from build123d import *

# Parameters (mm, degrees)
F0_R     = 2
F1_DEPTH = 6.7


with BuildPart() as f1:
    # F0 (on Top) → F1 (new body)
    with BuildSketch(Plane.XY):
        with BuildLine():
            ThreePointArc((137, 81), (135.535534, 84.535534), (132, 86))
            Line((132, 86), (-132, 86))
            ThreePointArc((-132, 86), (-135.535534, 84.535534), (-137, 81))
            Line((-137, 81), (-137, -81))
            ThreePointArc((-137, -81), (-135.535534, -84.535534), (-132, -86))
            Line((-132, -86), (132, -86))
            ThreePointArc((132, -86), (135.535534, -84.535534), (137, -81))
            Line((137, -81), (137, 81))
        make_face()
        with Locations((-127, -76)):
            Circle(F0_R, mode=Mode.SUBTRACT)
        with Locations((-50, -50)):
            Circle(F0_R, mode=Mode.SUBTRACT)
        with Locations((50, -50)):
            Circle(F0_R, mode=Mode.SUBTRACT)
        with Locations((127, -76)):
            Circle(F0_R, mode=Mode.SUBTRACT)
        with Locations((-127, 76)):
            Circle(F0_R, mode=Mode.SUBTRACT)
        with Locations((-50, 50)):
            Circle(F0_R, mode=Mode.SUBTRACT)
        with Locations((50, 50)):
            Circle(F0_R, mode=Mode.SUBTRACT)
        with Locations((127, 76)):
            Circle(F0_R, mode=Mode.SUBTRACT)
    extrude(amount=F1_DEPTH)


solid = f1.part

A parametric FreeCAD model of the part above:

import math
import FreeCAD as App
import Part
import Sketcher

V = App.Vector
Q = App.Units.Quantity

doc = App.newDocument("Part")
body = doc.addObject("PartDesign::Body", "Body")

sketch1 = body.newObject("Sketcher::SketchObject", "Sketch")
sketch1.AttachmentSupport = (doc.getObject("XY_Plane"), [""])
sketch1.MapMode = "FlatFace"
sketch1.addGeometry(Part.ArcOfCircle(Part.Circle(V(132, 81, 0), V(0, 0, 1), 5), math.radians(0), math.radians(90)), False)
sketch1.addGeometry(Part.LineSegment(V(132, 86, 0), V(-132, 86, 0)), False)
sketch1.addGeometry(Part.ArcOfCircle(Part.Circle(V(-132, 81, 0), V(0, 0, 1), 5), math.radians(90), math.radians(180)), False)
sketch1.addGeometry(Part.LineSegment(V(-137, 81, 0), V(-137, -81, 0)), False)
sketch1.addGeometry(Part.ArcOfCircle(Part.Circle(V(-132, -81, 0), V(0, 0, 1), 5), math.radians(180), math.radians(270)), False)
sketch1.addGeometry(Part.LineSegment(V(-132, -86, 0), V(132, -86, 0)), False)
sketch1.addGeometry(Part.ArcOfCircle(Part.Circle(V(132, -81, 0), V(0, 0, 1), 5), math.radians(-90), math.radians(0)), False)
sketch1.addGeometry(Part.LineSegment(V(137, -81, 0), V(137, 81, 0)), False)
sketch1.addGeometry(Part.Circle(V(-127, -76, 0), V(0, 0, 1), 2), False)
sketch1.addGeometry(Part.Circle(V(-50, -50, 0), V(0, 0, 1), 2), False)
sketch1.addGeometry(Part.Circle(V(50, -50, 0), V(0, 0, 1), 2), False)
sketch1.addGeometry(Part.Circle(V(127, -76, 0), V(0, 0, 1), 2), False)
sketch1.addGeometry(Part.Circle(V(-127, 76, 0), V(0, 0, 1), 2), False)
sketch1.addGeometry(Part.Circle(V(-50, 50, 0), V(0, 0, 1), 2), False)
sketch1.addGeometry(Part.Circle(V(50, 50, 0), V(0, 0, 1), 2), False)
sketch1.addGeometry(Part.Circle(V(127, 76, 0), V(0, 0, 1), 2), False)
sketch1.addConstraint(Sketcher.Constraint("Tangent", 0, 2, 1, 1))
sketch1.addConstraint(Sketcher.Constraint("Tangent", 1, 2, 2, 1))
sketch1.addConstraint(Sketcher.Constraint("Tangent", 2, 2, 3, 1))
sketch1.addConstraint(Sketcher.Constraint("Tangent", 3, 2, 4, 1))
sketch1.addConstraint(Sketcher.Constraint("Tangent", 4, 2, 5, 1))
sketch1.addConstraint(Sketcher.Constraint("Tangent", 5, 2, 6, 1))
sketch1.addConstraint(Sketcher.Constraint("Tangent", 6, 2, 7, 1))
sketch1.addConstraint(Sketcher.Constraint("Tangent", 7, 2, 0, 1))
sketch1.addConstraint(Sketcher.Constraint("Horizontal", 1))
sketch1.addConstraint(Sketcher.Constraint("Vertical", 3))
sketch1.addConstraint(Sketcher.Constraint("Horizontal", 5))
sketch1.addConstraint(Sketcher.Constraint("Vertical", 7))
sketch1.addConstraint(Sketcher.Constraint("Equal", 0, 2))
sketch1.addConstraint(Sketcher.Constraint("Equal", 2, 4))
sketch1.addConstraint(Sketcher.Constraint("Equal", 4, 6))
sketch1.addConstraint(Sketcher.Constraint("Equal", 8, 9))
sketch1.addConstraint(Sketcher.Constraint("Equal", 9, 10))
sketch1.addConstraint(Sketcher.Constraint("Equal", 10, 11))
sketch1.addConstraint(Sketcher.Constraint("Equal", 11, 12))
sketch1.addConstraint(Sketcher.Constraint("Equal", 12, 13))
sketch1.addConstraint(Sketcher.Constraint("Equal", 13, 14))
sketch1.addConstraint(Sketcher.Constraint("Equal", 14, 15))
sketch1.addConstraint(Sketcher.Constraint("Symmetric", 0, 3, 4, 3, -1, 1))
sketch1.addConstraint(Sketcher.Constraint("Symmetric", 11, 3, 12, 3, -1, 1))
sketch1.addConstraint(Sketcher.Constraint("Symmetric", 10, 3, 13, 3, -1, 1))
sketch1.addConstraint(Sketcher.Constraint("Symmetric", 9, 3, 14, 3, -1, 1))
sketch1.addConstraint(Sketcher.Constraint("Symmetric", 8, 3, 15, 3, -1, 1))
sketch1.addConstraint(Sketcher.Constraint("Symmetric", 9, 3, 10, 3, -2))
sketch1.addConstraint(Sketcher.Constraint("Symmetric", 8, 3, 11, 3, -2))
sketch1.addConstraint(Sketcher.Constraint("Diameter", 8, Q("4 mm")))
sketch1.addConstraint(Sketcher.Constraint("Radius", 0, Q("5 mm")))
sketch1.addConstraint(Sketcher.Constraint("DistanceX", 1, 2, 1, 1, Q("264 mm")))
sketch1.addConstraint(Sketcher.Constraint("DistanceY", 3, 2, 3, 1, Q("162 mm")))
sketch1.addConstraint(Sketcher.Constraint("DistanceX", 8, 3, -1, 1, Q("127 mm")))
sketch1.addConstraint(Sketcher.Constraint("DistanceY", 8, 3, -1, 1, Q("76 mm")))
sketch1.addConstraint(Sketcher.Constraint("DistanceX", 9, 3, -1, 1, Q("50 mm")))
sketch1.addConstraint(Sketcher.Constraint("DistanceY", 9, 3, -1, 1, Q("50 mm")))
pad1 = body.newObject("PartDesign::Pad", "Pad")
pad1.Profile = sketch1
pad1.Length = 6.7

doc.recompute()
